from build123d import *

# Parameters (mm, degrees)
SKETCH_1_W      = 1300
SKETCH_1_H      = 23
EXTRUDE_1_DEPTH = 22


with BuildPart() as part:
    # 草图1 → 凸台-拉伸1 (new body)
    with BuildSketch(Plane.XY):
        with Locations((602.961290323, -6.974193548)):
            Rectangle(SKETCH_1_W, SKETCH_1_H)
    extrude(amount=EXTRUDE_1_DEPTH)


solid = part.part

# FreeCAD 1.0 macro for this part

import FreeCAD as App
import Part
import Sketcher


def add_polygon(sketch, points):
    """Adds a closed chain of lines whose ends are joined by coincident constraints."""
    first, n = sketch.GeometryCount, len(points)
    for a, b in zip(points, points[1:] + points[:1]):
        sketch.addGeometry(Part.LineSegment(App.Vector(*a, 0), App.Vector(*b, 0)), False)
    for i in range(n):
        sketch.addConstraint(Sketcher.Constraint("Coincident", first + i, 2, first + (i + 1) % n, 1))

doc = App.newDocument("Part")
params = doc.addObject("Spreadsheet::Sheet", "Params")
for row, (alias, value) in enumerate([
    ("sketch1_width", "1300 mm"),
    ("sketch1_height", "23 mm"),
    ("pad1_length", "22 mm"),
], start=1):
    params.set(f"A{row}", alias)
    params.set(f"B{row}", "=" + value)
    params.setAlias(f"B{row}", alias)

body = doc.addObject("PartDesign::Body", "Body")

# Sketch on XY plane
sketch1 = body.newObject("Sketcher::SketchObject", "Sketch")
sketch1.AttachmentSupport = (doc.getObject("XY_Plane"), [""])
sketch1.MapMode = "FlatFace"
add_polygon(sketch1, [(-47, 5), (-47, -18), (1253, -18), (1253, 5)])  # lines 0-3
sketch1.addConstraint([
    Sketcher.Constraint("Vertical", 0),
    Sketcher.Constraint("Horizontal", 1),
    Sketcher.Constraint("Vertical", 2),
    Sketcher.Constraint("Horizontal", 3),
    Sketcher.Constraint("DistanceX", 1, 1, 1, 2, 1300.0),
    Sketcher.Constraint("DistanceY", 0, 2, 0, 1, 23.0),
    Sketcher.Constraint("DistanceX", 0, 2, -1, 1, 47.03871),
    Sketcher.Constraint("DistanceY", 0, 2, -1, 1, 18.474194),
])
sketch1.setExpression("Constraints[8]", "Params.sketch1_width")
sketch1.setExpression("Constraints[9]", "Params.sketch1_height")
pad1 = body.newObject("PartDesign::Pad", "Pad")
pad1.Profile = sketch1
pad1.setExpression("Length", "Params.pad1_length")

doc.recompute()
